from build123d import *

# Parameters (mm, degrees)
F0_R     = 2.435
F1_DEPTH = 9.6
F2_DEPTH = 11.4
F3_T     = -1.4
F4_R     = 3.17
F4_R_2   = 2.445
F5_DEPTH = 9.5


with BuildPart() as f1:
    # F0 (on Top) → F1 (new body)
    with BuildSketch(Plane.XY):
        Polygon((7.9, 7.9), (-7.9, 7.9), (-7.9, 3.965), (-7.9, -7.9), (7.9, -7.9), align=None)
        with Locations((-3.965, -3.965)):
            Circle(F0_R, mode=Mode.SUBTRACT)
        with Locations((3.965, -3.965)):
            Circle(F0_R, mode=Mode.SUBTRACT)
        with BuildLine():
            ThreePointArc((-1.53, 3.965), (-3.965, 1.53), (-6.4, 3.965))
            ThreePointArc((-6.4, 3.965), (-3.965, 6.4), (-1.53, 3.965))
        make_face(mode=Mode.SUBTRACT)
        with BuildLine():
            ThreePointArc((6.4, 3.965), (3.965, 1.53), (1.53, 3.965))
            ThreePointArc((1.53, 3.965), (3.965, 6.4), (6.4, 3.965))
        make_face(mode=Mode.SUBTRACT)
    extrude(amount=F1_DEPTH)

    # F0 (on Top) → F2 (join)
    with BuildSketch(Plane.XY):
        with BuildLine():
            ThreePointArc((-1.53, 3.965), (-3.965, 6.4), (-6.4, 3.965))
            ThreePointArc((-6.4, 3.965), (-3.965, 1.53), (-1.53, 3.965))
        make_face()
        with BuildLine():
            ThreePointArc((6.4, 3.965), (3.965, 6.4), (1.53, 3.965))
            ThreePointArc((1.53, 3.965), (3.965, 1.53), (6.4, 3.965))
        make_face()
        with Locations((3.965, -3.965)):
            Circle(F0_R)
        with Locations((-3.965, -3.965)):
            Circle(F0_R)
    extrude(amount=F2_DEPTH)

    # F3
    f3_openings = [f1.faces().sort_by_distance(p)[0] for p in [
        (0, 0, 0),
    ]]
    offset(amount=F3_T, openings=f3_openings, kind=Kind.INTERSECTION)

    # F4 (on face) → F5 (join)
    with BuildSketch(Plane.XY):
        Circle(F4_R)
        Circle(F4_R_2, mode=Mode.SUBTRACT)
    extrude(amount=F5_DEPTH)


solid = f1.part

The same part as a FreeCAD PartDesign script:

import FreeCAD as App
import Part
import Sketcher
Q = App.Units.Quantity


def faces_at(feature, points):
    """Names of the faces that lie closest to the given points."""
    faces = feature.Shape.Faces
    near = lambda p: min(range(len(faces)), key=lambda i: faces[i].distToShape(Part.Vertex(*p))[0])
    return sorted({f"Face{near(p) + 1}" for p in points})

doc = App.newDocument("Part")
body = doc.addObject("PartDesign::Body", "Body")

# Sketch on XY plane
sketch1 = body.newObject("Sketcher::SketchObject", "Sketch")
sketch1.AttachmentSupport = (doc.getObject("XY_Plane"), [""])
sketch1.MapMode = "FlatFace"
sketch1.addGeometry(Part.LineSegment(App.Vector(7.9, 7.9, 0), App.Vector(-7.9, 7.9, 0)), False)
sketch1.addGeometry(Part.LineSegment(App.Vector(-7.9, 7.9, 0), App.Vector(-7.9, -7.9, 0)), False)
sketch1.addGeometry(Part.LineSegment(App.Vector(-7.9, -7.9, 0), App.Vector(7.9, -7.9, 0)), False)
sketch1.addGeometry(Part.LineSegment(App.Vector(7.9, -7.9, 0), App.Vector(7.9, 7.9, 0)), False)
sketch1.addGeometry(Part.Circle(App.Vector(-4, -4, 0), App.Vector(0, 0, 1), 2.4), False)
sketch1.addGeometry(Part.Circle(App.Vector(4, -4, 0), App.Vector(0, 0, 1), 2.4), False)
sketch1.addGeometry(Part.Circle(App.Vector(-4, 4, 0), App.Vector(0, 0, 1), 2.4), False)
sketch1.addGeometry(Part.Circle(App.Vector(4, 4, 0), App.Vector(0, 0, 1), 2.4), False)
sketch1.addConstraint(Sketcher.Constraint("Coincident", 0, 2, 1, 1))
sketch1.addConstraint(Sketcher.Constraint("Coincident", 1, 2, 2, 1))
sketch1.addConstraint(Sketcher.Constraint("Coincident", 2, 2, 3, 1))
sketch1.addConstraint(Sketcher.Constraint("Coincident", 3, 2, 0, 1))
sketch1.addConstraint(Sketcher.Constraint("Horizontal", 0))
sketch1.addConstraint(Sketcher.Constraint("Vertical", 1))
sketch1.addConstraint(Sketcher.Constraint("Horizontal", 2))
sketch1.addConstraint(Sketcher.Constraint("Vertical", 3))
sketch1.addConstraint(Sketcher.Constraint("Equal", 4, 5))
sketch1.addConstraint(Sketcher.Constraint("Equal", 5, 6))
sketch1.addConstraint(Sketcher.Constraint("Equal", 6, 7))
sketch1.addConstraint(Sketcher.Constraint("Symmetric", 5, 3, 6, 3, -1, 1))
sketch1.addConstraint(Sketcher.Constraint("Symmetric", 4, 3, 7, 3, -1, 1))
sketch1.addConstraint(Sketcher.Constraint("Symmetric", 0, 2, 2, 2, -1, 1))
sketch1.addConstraint(Sketcher.Constraint("Symmetric", 4, 3, 5, 3, -2))
sketch1.addConstraint(Sketcher.Constraint("Equal", 2, 1))
sketch1.addConstraint(Sketcher.Constraint("Diameter", 4, Q("4.87 mm")))
sketch1.addConstraint(Sketcher.Constraint("DistanceX", 0, 2, 0, 1, Q("15.8 mm")))
sketch1.addConstraint(Sketcher.Constraint("DistanceX", 4, 3, 5, 3, Q("7.93 mm")))
sketch1.addConstraint(Sketcher.Constraint("DistanceY", 4, 3, 6, 3, Q("7.93 mm")))
pad1 = body.newObject("PartDesign::Pad", "Pad")
pad1.Profile = sketch1
pad1.Length = 9.6

# Sketch on XY plane
sketch2 = body.newObject("Sketcher::SketchObject", "Sketch001")
sketch2.AttachmentSupport = (doc.getObject("XY_Plane"), [""])
sketch2.MapMode = "FlatFace"
sketch2.addGeometry(Part.Circle(App.Vector(-4, 4, 0), App.Vector(0, 0, 1), 2.4), False)
sketch2.addGeometry(Part.Circle(App.Vector(4, 4, 0), App.Vector(0, 0, 1), 2.4), False)
sketch2.addGeometry(Part.Circle(App.Vector(4, -4, 0), App.Vector(0, 0, 1), 2.4), False)
sketch2.addGeometry(Part.Circle(App.Vector(-4, -4, 0), App.Vector(0, 0, 1), 2.4), False)
sketch2.addConstraint(Sketcher.Constraint("Equal", 0, 1))
sketch2.addConstraint(Sketcher.Constraint("Equal", 1, 2))
sketch2.addConstraint(Sketcher.Constraint("Equal", 2, 3))
sketch2.addConstraint(Sketcher.Constraint("Symmetric", 0, 3, 2, 3, -1, 1))
sketch2.addConstraint(Sketcher.Constraint("Symmetric", 1, 3, 3, 3, -1, 1))
sketch2.addConstraint(Sketcher.Constraint("Symmetric", 0, 3, 1, 3, -2))
sketch2.addConstraint(Sketcher.Constraint("Diameter", 0, Q("4.87 mm")))
sketch2.addConstraint(Sketcher.Constraint("DistanceX", 0, 3, 1, 3, Q("7.93 mm")))
sketch2.addConstraint(Sketcher.Constraint("DistanceY", 2, 3, 1, 3, Q("7.93 mm")))
pad2 = body.newObject("PartDesign::Pad", "Pad001")
pad2.Profile = sketch2
pad2.Length = 11.4
doc.recompute()

thickness = body.newObject("PartDesign::Thickness", "Thickness")
thickness.Base = (pad2, faces_at(pad2, [(0, 0, 0)]))
thickness.Value = 1.4
thickness.Reversed = True
thickness.Join = "Intersection"

# Sketch on XY plane
sketch3 = body.newObject("Sketcher::SketchObject", "Sketch002")
sketch3.AttachmentSupport = (doc.getObject("XY_Plane"), [""])
sketch3.MapMode = "FlatFace"
sketch3.addGeometry(Part.Circle(App.Vector(0, 0, 0), App.Vector(0, 0, 1), 3.2), False)
sketch3.addGeometry(Part.Circle(App.Vector(0, 0, 0), App.Vector(0, 0, 1), 2.4), False)
sketch3.addConstraint(Sketcher.Constraint("Coincident", 0, 3, -1, 1))
sketch3.addConstraint(Sketcher.Constraint("Coincident", 1, 3, -1, 1))
sketch3.addConstraint(Sketcher.Constraint("Diameter", 0, Q("6.34 mm")))
sketch3.addConstraint(Sketcher.Constraint("Diameter", 1, Q("4.89 mm")))
pad3 = body.newObject("PartDesign::Pad", "Pad002")
pad3.Profile = sketch3
pad3.Length = 9.5

doc.recompute()
